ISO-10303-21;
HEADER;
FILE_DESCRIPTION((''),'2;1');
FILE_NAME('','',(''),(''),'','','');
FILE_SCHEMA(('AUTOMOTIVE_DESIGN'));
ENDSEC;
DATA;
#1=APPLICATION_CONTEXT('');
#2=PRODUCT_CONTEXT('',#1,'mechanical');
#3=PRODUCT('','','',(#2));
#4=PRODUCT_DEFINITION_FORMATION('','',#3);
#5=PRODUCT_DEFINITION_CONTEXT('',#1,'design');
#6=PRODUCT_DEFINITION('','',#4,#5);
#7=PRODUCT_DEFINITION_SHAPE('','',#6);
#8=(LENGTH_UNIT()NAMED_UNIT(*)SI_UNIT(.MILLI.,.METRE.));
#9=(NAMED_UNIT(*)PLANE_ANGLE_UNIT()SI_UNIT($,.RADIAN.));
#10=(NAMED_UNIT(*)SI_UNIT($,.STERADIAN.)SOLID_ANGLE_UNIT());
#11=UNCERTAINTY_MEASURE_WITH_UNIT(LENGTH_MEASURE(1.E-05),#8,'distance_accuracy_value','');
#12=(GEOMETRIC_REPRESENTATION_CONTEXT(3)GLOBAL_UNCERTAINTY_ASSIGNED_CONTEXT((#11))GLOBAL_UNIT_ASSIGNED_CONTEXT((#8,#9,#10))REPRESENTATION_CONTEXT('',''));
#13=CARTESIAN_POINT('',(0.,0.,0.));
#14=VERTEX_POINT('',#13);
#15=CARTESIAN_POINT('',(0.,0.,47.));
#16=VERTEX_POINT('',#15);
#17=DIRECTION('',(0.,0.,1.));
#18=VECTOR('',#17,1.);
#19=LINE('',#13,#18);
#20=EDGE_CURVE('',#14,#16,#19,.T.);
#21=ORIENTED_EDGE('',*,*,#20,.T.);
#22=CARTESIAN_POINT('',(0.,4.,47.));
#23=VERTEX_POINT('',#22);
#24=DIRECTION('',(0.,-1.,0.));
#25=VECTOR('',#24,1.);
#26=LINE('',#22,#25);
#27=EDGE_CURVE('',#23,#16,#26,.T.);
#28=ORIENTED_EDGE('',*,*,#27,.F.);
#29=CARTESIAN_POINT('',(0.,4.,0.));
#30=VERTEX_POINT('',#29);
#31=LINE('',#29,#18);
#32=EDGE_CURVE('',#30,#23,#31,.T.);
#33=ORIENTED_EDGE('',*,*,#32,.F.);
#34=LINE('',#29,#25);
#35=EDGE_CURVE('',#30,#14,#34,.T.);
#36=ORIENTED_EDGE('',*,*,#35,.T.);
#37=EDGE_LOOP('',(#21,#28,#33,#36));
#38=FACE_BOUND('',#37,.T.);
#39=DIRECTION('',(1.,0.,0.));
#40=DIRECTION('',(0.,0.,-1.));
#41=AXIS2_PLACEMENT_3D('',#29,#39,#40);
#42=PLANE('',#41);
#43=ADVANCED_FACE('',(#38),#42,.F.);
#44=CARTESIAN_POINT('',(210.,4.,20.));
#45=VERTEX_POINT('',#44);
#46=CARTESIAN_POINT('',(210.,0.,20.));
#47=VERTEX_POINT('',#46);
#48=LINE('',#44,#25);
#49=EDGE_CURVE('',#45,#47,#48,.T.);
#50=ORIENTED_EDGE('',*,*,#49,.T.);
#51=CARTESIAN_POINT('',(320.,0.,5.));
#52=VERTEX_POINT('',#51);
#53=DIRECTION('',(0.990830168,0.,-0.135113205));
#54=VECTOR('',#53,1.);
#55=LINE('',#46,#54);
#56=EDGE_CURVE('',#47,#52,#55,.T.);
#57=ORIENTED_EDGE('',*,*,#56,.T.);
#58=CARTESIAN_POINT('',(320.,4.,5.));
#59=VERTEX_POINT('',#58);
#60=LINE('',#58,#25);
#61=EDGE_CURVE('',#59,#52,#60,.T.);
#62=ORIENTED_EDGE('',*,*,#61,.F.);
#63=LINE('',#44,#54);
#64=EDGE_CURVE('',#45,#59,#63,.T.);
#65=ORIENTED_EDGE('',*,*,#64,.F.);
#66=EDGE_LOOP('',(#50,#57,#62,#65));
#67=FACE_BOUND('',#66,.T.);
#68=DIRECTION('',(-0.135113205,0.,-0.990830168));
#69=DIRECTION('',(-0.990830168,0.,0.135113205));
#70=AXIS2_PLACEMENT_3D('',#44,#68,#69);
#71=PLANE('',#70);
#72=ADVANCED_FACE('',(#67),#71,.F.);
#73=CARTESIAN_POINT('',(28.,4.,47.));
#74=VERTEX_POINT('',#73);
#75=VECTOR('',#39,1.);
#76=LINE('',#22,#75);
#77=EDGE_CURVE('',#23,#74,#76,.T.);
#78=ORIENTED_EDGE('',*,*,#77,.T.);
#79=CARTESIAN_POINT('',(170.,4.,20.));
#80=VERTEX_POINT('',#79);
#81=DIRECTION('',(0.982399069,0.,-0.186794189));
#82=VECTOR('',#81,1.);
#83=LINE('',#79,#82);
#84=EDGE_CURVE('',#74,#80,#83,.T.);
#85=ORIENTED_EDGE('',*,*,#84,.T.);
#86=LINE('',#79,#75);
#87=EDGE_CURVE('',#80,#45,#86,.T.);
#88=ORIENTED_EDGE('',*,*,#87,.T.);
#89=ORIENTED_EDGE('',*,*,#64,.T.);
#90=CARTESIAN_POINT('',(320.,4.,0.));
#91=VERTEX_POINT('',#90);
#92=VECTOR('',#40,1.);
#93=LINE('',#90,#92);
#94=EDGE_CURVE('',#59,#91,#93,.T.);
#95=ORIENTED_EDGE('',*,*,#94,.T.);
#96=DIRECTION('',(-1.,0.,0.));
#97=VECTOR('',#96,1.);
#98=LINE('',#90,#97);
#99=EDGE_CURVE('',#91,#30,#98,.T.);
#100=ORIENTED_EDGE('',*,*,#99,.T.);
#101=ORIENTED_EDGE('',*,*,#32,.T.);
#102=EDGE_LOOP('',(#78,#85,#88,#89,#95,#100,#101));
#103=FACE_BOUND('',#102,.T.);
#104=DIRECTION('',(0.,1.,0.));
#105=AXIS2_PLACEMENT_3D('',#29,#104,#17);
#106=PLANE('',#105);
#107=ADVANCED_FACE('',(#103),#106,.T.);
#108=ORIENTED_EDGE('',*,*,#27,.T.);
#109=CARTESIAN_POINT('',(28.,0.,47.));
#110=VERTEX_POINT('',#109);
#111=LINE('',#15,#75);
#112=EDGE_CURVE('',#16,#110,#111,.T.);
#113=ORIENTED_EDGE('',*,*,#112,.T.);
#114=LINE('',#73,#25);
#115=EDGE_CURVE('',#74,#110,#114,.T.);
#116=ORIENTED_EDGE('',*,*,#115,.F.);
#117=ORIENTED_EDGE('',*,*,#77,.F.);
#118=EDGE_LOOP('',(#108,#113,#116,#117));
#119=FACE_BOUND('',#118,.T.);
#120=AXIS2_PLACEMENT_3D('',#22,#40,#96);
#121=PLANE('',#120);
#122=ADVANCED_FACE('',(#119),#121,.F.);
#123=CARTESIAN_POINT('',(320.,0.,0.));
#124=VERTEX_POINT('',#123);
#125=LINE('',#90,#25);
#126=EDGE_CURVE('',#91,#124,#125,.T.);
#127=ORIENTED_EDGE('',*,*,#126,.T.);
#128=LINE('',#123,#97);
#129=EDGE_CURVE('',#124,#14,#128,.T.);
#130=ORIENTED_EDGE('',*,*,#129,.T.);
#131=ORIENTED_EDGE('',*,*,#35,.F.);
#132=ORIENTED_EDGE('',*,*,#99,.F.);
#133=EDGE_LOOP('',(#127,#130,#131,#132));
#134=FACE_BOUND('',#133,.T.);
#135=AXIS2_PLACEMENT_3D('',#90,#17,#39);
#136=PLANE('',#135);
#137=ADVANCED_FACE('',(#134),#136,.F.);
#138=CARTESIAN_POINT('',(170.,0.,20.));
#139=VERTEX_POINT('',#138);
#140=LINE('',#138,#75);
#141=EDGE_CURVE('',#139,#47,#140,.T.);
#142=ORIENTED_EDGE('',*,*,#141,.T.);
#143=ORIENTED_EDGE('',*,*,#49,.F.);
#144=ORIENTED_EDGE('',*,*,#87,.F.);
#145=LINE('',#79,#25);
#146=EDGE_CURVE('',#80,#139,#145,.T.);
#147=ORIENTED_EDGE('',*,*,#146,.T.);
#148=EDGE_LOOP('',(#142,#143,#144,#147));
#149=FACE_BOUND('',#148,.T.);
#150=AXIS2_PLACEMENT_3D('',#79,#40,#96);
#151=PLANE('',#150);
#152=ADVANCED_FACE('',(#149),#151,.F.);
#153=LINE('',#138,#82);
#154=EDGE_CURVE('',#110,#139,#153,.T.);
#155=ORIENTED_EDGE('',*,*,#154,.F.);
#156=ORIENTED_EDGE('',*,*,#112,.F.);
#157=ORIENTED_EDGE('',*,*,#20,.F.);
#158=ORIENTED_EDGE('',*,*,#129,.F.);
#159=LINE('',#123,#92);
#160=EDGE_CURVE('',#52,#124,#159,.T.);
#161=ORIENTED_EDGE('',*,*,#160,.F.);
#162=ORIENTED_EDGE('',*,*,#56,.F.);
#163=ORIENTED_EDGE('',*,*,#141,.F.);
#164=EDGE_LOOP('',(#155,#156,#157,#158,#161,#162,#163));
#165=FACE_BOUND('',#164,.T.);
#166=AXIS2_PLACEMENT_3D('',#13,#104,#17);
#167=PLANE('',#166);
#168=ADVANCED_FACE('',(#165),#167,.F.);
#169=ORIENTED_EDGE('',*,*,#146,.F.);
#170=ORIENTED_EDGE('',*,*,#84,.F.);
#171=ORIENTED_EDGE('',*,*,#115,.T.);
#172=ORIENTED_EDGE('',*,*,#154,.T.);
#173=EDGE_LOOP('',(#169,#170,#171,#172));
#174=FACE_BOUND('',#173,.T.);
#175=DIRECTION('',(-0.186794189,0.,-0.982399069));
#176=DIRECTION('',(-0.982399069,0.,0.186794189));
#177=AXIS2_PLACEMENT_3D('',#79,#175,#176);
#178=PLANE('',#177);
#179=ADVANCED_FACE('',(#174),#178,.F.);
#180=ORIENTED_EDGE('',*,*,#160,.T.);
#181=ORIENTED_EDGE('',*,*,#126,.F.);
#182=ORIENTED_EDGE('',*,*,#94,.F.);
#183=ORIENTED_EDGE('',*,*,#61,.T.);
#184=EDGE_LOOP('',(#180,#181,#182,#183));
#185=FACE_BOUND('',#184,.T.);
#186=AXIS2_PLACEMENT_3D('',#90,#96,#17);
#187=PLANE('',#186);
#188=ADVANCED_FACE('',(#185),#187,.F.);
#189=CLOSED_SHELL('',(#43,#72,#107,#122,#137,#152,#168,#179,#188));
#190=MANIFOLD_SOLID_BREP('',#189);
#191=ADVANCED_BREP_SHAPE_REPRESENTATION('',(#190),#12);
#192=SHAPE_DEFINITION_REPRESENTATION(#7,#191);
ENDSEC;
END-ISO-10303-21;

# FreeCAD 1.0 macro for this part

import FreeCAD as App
import Part
import Sketcher
from FreeCAD import Vector
Q = App.Units.Quantity

doc = App.newDocument("Part")
body = doc.addObject("PartDesign::Body", "Body")

sketch1 = body.newObject("Sketcher::SketchObject", "Sketch")
sketch1.AttachmentSupport = (doc.getObject("XZ_Plane"), [""])
sketch1.MapMode = "FlatFace"
sketch1.addGeometry(Part.LineSegment(Vector(0, 0, 0), Vector(0, 47, 0)), False)
sketch1.addGeometry(Part.LineSegment(Vector(0, 47, 0), Vector(28, 47, 0)), False)
sketch1.addGeometry(Part.LineSegment(Vector(28, 47, 0), Vector(170, 20, 0)), False)
sketch1.addGeometry(Part.LineSegment(Vector(170, 20, 0), Vector(210, 20, 0)), False)
sketch1.addGeometry(Part.LineSegment(Vector(210, 20, 0), Vector(320, 5, 0)), False)
sketch1.addGeometry(Part.LineSegment(Vector(320, 5, 0), Vector(320, 0, 0)), False)
sketch1.addGeometry(Part.LineSegment(Vector(320, 0, 0), Vector(0, 0, 0)), False)
sketch1.addConstraint(Sketcher.Constraint("Coincident", 0, 2, 1, 1))
sketch1.addConstraint(Sketcher.Constraint("Coincident", 1, 2, 2, 1))
sketch1.addConstraint(Sketcher.Constraint("Coincident", 2, 2, 3, 1))
sketch1.addConstraint(Sketcher.Constraint("Coincident", 3, 2, 4, 1))
sketch1.addConstraint(Sketcher.Constraint("Coincident", 4, 2, 5, 1))
sketch1.addConstraint(Sketcher.Constraint("Coincident", 5, 2, 6, 1))
sketch1.addConstraint(Sketcher.Constraint("Coincident", 6, 2, 0, 1))
sketch1.addConstraint(Sketcher.Constraint("Vertical", 0))
sketch1.addConstraint(Sketcher.Constraint("Horizontal", 1))
sketch1.addConstraint(Sketcher.Constraint("Horizontal", 3))
sketch1.addConstraint(Sketcher.Constraint("Vertical", 5))
sketch1.addConstraint(Sketcher.Constraint("Horizontal", 6))
sketch1.addConstraint(Sketcher.Constraint("Coincident", 6, 2, -1, 1))
sketch1.addConstraint(Sketcher.Constraint("DistanceX", 1, 1, 1, 2, Q("28 mm")))
sketch1.addConstraint(Sketcher.Constraint("DistanceX", 3, 1, 3, 2, Q("40 mm")))
sketch1.addConstraint(Sketcher.Constraint("DistanceX", 6, 2, 6, 1, Q("320 mm")))
sketch1.addConstraint(Sketcher.Constraint("DistanceY", 0, 1, 0, 2, Q("47 mm")))
sketch1.addConstraint(Sketcher.Constraint("DistanceY", 5, 2, 5, 1, Q("5 mm")))
sketch1.addConstraint(Sketcher.Constraint("DistanceX", -1, 1, 2, 2, Q("170 mm")))
sketch1.addConstraint(Sketcher.Constraint("DistanceY", -1, 1, 2, 2, Q("20 mm")))
pad1 = body.newObject("PartDesign::Pad", "Pad")
pad1.Profile = sketch1
pad1.Length = 4
pad1.Reversed = True

doc.recompute()
